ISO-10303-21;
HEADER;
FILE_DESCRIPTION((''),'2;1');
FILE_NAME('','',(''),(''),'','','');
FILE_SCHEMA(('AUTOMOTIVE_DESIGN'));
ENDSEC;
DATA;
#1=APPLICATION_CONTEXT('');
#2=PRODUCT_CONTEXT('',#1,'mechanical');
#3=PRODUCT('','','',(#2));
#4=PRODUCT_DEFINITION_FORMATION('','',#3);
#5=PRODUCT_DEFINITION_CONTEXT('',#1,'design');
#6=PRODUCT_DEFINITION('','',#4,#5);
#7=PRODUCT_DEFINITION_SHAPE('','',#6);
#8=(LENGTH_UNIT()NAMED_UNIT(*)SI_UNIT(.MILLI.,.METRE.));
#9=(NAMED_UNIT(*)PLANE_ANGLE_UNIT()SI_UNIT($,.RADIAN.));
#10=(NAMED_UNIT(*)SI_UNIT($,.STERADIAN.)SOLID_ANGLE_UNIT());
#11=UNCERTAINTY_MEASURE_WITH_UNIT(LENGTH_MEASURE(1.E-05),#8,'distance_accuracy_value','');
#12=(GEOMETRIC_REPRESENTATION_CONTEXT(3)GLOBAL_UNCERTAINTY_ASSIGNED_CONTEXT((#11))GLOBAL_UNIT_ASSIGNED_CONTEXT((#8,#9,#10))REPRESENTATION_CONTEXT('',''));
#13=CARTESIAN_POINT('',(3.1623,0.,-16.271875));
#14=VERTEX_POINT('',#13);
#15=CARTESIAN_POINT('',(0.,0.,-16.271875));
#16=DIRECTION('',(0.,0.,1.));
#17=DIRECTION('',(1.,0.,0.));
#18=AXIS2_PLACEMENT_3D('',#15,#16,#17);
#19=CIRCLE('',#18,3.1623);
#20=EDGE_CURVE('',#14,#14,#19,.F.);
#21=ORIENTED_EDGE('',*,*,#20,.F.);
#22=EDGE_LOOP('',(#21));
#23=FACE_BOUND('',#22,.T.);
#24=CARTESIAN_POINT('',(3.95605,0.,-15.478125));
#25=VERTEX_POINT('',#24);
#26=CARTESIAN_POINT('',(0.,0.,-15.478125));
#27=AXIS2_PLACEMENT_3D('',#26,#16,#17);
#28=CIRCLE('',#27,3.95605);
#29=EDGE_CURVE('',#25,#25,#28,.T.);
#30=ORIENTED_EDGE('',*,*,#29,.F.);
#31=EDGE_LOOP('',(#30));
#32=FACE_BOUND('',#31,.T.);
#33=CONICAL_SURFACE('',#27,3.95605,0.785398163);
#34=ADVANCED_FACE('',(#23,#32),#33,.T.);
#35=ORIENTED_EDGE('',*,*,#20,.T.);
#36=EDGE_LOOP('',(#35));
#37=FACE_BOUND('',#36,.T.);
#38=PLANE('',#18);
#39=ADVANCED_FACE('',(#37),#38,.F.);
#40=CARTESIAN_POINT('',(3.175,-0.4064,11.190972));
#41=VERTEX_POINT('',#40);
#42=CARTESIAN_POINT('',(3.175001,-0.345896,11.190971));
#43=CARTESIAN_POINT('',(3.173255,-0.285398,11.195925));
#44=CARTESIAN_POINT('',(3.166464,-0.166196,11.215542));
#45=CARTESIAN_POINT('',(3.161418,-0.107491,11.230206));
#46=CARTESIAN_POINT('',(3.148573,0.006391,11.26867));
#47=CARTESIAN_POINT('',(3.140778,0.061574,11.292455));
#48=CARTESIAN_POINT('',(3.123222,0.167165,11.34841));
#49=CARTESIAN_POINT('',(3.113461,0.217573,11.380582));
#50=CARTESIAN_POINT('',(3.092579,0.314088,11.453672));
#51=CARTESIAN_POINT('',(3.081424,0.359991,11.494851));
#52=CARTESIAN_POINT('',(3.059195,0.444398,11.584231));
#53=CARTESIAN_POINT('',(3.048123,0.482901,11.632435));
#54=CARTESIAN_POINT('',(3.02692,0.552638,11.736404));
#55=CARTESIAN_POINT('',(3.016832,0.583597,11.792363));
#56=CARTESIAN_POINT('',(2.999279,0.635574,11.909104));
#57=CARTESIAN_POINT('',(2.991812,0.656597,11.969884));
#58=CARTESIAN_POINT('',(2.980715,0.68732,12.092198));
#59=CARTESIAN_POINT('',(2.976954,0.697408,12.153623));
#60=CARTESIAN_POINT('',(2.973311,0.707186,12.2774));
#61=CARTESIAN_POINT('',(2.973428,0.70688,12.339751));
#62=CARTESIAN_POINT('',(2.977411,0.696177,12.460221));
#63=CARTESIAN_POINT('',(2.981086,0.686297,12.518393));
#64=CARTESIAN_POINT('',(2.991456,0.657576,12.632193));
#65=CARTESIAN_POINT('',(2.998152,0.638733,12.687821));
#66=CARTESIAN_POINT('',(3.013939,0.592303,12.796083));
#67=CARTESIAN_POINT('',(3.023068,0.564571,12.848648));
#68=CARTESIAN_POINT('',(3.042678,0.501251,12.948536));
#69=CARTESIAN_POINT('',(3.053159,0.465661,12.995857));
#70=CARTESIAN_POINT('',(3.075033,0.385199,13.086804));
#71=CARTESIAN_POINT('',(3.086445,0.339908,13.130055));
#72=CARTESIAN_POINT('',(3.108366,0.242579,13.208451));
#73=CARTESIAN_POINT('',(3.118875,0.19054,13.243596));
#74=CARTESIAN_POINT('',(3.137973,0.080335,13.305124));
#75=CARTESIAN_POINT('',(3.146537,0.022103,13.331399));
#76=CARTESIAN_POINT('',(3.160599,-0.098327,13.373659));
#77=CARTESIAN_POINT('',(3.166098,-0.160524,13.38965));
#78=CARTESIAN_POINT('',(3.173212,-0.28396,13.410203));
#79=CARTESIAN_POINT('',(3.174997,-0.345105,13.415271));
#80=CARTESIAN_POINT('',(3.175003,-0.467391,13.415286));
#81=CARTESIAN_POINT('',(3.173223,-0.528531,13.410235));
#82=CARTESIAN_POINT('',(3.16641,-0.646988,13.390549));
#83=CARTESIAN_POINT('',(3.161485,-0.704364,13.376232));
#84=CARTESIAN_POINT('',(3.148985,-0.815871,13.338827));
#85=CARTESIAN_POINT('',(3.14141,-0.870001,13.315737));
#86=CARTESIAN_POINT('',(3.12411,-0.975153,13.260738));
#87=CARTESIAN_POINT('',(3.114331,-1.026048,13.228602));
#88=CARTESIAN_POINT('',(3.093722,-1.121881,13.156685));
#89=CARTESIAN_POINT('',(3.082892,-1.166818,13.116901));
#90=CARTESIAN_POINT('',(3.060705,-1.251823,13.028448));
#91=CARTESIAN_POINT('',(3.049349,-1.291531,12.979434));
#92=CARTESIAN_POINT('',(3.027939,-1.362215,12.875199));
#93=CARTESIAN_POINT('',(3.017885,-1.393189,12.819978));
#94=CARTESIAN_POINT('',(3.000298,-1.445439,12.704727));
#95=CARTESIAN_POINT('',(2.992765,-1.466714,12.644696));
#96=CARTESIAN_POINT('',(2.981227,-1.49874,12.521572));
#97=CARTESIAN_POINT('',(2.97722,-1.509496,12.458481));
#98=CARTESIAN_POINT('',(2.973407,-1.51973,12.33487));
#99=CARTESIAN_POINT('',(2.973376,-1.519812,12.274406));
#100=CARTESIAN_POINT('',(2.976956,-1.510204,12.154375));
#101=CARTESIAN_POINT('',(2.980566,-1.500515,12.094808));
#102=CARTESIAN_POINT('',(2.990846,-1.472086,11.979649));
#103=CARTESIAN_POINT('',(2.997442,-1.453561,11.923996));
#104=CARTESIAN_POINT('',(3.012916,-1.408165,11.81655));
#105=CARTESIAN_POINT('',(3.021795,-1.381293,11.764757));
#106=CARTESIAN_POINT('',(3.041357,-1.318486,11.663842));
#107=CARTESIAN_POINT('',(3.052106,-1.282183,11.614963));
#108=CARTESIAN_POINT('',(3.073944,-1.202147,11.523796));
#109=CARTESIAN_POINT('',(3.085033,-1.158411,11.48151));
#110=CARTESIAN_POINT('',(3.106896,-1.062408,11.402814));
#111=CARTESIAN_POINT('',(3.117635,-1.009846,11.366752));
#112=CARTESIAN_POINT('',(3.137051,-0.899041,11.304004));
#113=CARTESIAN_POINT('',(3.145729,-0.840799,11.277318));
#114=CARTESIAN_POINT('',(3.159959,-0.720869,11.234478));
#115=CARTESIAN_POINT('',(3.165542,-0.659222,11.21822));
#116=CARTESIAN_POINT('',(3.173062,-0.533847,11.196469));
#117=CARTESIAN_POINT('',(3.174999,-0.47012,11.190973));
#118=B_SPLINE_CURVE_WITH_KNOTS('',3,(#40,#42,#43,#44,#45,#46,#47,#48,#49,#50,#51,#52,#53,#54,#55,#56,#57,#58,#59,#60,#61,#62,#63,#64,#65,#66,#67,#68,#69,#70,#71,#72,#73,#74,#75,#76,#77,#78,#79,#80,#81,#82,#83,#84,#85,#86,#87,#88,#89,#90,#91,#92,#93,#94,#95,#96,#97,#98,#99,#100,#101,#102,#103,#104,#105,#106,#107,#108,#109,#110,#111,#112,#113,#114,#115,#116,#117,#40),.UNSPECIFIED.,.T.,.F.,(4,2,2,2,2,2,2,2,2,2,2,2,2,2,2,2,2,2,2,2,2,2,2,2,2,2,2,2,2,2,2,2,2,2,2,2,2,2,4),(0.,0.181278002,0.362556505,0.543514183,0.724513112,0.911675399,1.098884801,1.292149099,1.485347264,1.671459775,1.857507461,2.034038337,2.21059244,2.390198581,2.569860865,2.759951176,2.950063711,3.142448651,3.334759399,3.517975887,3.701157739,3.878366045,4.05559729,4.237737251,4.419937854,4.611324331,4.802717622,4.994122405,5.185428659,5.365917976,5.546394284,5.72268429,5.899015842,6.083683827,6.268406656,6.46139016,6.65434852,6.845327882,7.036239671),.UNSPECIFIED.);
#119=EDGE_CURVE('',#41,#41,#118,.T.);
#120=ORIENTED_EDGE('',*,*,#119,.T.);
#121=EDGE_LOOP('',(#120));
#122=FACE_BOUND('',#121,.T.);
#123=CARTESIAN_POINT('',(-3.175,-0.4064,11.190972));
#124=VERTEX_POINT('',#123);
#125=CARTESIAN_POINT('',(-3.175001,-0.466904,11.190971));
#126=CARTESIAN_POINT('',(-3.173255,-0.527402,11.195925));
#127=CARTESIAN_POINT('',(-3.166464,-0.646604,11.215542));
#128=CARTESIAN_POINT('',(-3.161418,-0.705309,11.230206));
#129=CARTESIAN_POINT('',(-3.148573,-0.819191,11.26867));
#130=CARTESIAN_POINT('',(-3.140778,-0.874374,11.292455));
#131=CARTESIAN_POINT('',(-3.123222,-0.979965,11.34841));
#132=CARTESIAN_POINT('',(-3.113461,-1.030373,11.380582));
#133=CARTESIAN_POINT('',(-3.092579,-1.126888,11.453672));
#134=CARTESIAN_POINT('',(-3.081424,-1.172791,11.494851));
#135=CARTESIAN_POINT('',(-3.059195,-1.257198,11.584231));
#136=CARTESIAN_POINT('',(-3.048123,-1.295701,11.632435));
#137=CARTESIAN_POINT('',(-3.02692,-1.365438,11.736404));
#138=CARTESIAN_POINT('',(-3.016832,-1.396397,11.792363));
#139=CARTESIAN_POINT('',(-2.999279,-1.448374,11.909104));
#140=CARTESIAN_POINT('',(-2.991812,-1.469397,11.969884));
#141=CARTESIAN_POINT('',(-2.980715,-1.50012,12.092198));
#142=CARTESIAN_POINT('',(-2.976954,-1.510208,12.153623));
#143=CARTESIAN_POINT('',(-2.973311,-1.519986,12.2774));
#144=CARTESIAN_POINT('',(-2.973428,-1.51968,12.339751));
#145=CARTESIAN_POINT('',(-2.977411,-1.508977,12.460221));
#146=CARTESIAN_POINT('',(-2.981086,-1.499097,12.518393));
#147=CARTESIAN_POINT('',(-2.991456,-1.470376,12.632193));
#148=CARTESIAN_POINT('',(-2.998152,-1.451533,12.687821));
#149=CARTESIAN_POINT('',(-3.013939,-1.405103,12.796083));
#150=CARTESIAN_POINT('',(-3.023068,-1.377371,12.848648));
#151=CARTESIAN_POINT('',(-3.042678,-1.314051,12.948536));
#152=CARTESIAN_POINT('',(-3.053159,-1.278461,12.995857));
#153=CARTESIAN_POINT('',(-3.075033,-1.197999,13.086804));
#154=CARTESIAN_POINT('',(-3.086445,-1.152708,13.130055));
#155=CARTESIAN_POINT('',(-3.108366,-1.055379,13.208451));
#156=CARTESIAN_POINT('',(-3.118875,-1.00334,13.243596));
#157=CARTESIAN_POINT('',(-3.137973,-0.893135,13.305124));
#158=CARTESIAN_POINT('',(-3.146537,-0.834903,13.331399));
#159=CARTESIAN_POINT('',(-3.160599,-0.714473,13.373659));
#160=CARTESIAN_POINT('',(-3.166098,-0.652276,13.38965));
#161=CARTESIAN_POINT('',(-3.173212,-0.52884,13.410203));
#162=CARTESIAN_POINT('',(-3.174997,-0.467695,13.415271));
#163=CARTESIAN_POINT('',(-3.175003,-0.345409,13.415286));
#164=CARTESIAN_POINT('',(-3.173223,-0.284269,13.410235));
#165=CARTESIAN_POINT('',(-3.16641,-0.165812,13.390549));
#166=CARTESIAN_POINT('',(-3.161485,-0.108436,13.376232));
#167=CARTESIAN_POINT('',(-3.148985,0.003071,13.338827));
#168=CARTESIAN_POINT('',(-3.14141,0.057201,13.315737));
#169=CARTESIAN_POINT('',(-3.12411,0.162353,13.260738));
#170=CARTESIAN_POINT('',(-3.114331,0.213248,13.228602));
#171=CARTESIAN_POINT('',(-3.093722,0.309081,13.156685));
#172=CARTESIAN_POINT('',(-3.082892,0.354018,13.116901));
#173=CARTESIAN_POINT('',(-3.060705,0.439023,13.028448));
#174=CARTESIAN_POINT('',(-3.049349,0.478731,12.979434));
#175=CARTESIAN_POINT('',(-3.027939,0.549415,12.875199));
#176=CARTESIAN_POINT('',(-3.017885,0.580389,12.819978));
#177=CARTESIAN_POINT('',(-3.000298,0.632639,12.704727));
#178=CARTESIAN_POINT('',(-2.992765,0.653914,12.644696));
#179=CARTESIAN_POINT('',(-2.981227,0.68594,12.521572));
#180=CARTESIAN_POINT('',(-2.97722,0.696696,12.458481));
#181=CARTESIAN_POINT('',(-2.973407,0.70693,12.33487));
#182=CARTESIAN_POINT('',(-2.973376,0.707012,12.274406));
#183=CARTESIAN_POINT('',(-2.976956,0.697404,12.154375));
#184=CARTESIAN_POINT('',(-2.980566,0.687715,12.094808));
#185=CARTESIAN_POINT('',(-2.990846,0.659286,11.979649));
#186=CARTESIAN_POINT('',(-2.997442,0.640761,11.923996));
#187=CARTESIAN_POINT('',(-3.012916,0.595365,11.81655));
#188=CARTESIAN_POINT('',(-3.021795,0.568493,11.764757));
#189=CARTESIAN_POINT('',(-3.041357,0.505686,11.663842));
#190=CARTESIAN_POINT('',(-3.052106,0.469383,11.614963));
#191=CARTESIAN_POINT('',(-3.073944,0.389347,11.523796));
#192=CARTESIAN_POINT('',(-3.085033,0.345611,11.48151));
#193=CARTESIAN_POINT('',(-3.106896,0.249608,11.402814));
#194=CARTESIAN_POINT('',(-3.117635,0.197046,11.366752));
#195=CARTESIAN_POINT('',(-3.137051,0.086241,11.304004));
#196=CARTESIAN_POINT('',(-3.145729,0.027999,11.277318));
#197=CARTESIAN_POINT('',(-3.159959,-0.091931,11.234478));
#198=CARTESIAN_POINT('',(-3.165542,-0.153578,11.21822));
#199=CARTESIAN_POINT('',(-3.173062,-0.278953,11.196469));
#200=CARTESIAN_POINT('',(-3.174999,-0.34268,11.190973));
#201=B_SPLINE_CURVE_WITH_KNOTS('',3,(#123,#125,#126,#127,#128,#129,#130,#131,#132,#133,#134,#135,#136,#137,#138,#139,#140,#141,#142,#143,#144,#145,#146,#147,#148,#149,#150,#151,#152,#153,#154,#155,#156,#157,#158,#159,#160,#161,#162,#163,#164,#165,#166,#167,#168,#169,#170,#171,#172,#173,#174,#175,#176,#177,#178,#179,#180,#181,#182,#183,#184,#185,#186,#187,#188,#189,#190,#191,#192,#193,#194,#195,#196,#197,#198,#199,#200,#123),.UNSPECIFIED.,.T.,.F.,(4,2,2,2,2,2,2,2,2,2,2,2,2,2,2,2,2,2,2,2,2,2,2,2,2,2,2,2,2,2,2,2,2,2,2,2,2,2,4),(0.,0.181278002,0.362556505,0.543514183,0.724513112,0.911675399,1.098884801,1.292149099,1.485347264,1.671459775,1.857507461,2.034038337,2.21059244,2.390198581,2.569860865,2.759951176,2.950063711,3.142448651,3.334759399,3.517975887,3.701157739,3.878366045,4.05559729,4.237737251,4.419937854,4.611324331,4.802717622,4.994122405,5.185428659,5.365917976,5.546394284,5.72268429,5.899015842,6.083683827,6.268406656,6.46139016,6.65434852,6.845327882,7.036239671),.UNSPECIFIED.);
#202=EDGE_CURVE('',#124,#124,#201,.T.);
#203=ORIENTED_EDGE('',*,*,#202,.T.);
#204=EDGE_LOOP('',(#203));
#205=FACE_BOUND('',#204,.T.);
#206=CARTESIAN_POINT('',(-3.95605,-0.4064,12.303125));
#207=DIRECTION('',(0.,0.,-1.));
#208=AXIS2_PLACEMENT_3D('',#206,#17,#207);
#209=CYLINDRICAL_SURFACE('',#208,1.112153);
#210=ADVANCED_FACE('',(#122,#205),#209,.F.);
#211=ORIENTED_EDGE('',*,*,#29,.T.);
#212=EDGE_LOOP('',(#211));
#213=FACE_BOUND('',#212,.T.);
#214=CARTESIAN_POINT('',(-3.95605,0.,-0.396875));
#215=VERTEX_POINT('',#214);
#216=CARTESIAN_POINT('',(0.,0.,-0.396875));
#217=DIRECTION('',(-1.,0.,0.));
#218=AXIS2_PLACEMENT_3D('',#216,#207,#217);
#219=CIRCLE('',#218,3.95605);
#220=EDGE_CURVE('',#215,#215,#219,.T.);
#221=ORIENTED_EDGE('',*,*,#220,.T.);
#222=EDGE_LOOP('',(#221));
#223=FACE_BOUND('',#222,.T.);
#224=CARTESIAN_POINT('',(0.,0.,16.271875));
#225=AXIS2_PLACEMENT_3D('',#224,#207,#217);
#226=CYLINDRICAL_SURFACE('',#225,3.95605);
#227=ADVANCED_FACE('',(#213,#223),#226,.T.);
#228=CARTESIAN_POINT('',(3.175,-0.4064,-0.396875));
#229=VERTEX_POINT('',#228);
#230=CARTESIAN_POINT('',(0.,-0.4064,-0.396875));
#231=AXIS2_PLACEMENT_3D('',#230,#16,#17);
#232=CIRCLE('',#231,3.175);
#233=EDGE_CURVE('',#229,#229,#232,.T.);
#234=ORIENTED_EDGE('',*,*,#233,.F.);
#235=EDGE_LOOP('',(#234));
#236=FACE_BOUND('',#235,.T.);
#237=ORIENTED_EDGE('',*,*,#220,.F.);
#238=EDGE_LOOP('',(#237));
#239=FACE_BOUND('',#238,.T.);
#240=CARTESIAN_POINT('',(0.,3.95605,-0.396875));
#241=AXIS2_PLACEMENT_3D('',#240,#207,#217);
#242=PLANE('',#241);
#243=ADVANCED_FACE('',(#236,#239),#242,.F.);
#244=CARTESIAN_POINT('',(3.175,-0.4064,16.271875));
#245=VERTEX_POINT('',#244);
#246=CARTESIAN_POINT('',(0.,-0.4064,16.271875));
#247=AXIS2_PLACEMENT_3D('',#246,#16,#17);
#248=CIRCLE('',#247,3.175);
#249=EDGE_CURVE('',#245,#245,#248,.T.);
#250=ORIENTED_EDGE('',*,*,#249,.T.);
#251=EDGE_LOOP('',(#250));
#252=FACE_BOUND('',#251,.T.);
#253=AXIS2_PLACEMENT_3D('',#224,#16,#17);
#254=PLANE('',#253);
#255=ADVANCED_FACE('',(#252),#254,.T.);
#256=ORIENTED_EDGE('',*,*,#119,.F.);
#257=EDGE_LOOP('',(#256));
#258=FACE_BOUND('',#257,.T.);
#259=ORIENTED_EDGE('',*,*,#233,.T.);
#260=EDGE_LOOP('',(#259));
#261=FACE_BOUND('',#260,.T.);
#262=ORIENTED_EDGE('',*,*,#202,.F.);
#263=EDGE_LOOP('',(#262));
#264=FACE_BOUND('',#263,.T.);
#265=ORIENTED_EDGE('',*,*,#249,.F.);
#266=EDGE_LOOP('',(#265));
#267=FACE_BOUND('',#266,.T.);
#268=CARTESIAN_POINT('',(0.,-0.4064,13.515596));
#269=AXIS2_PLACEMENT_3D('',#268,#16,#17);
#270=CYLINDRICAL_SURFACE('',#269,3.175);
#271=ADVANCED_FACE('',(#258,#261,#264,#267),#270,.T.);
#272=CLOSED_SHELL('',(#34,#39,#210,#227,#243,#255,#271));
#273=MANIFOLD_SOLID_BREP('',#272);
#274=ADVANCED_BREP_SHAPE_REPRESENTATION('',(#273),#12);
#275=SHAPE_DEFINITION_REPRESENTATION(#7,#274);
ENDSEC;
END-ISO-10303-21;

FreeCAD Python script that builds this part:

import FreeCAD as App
import Part
import Sketcher
from FreeCAD import Vector
Q = App.Units.Quantity


def edges_at(feature, points):
    """Names of the edges that pass closest to the given points."""
    edges = feature.Shape.Edges
    near = lambda p: min(range(len(edges)), key=lambda i: edges[i].distToShape(Part.Vertex(*p))[0])
    return sorted({f"Edge{near(p) + 1}" for p in points})

doc = App.newDocument("Part")
body = doc.addObject("PartDesign::Body", "Body")

# Sketch on XY plane
sketch1 = body.newObject("Sketcher::SketchObject", "Sketch")
sketch1.AttachmentSupport = (doc.getObject("XY_Plane"), [""])
sketch1.MapMode = "FlatFace"
sketch1.addGeometry(Part.Circle(Vector(0, 0, 0), Vector(0, 0, 1), 4), False)
sketch1.addConstraint([
    Sketcher.Constraint("Coincident", 0, 3, -1, 1),
    Sketcher.Constraint("Diameter", 0, Q("0.3115 in")),
])
pad1 = body.newObject("PartDesign::Pad", "Pad")
pad1.Profile = sketch1
pad1.Length = Q("1.28125 in")
pad1.Midplane = True
doc.recompute()

chamfer = body.newObject("PartDesign::Chamfer", "Chamfer")
chamfer.Base = (pad1, edges_at(pad1, [(-3.956, 0, -16.272)]))
chamfer.Size = Q("0.03125 in")

# Sketch on YZ plane
sketch2 = body.newObject("Sketcher::SketchObject", "Sketch001")
sketch2.AttachmentSupport = (doc.getObject("YZ_Plane"), [""])
sketch2.MapMode = "FlatFace"
sketch2.addGeometry([
    Part.LineSegment(Vector(4, 16.3, 0), Vector(2.8, 16.3, 0)),
    Part.LineSegment(Vector(2.8, 16.3, 0), Vector(2.8, -0.4, 0)),
    Part.LineSegment(Vector(2.8, -0.4, 0), Vector(4, -0.4, 0)),
    Part.LineSegment(Vector(4, -0.4, 0), Vector(4, 16.3, 0)),
], False)
sketch2.addGeometry(Part.LineSegment(Vector(-0.4, 16.3, 0), Vector(-0.4, -0.4, 0)), True)  # axis
sketch2.addConstraint([
    Sketcher.Constraint("Coincident", 0, 2, 1, 1),
    Sketcher.Constraint("Coincident", 1, 2, 2, 1),
    Sketcher.Constraint("Coincident", 2, 2, 3, 1),
    Sketcher.Constraint("Coincident", 3, 2, 0, 1),
    Sketcher.Constraint("Horizontal", 0),
    Sketcher.Constraint("Vertical", 1),
    Sketcher.Constraint("Horizontal", 2),
    Sketcher.Constraint("Vertical", 3),
    Sketcher.Constraint("Vertical", 4),
    Sketcher.Constraint("Horizontal", 3, 2, 4, 1),
    Sketcher.Constraint("Horizontal", 2, 2, 4, 2),
    Sketcher.Constraint("DistanceY", 1, 2, 1, 1, Q("0.65625 in")),
    Sketcher.Constraint("DistanceX", -1, 1, 0, 2, Q("0.109 in")),
    Sketcher.Constraint("DistanceY", -1, 1, 0, 2, Q("0.640625 in")),
    Sketcher.Constraint("DistanceX", 4, 1, -1, 1, Q("0.016 in")),
    Sketcher.Constraint("DistanceX", 0, 2, 0, 1, Q("1.18745 mm")),
])
groove = body.newObject("PartDesign::Groove", "Groove")
groove.Profile = sketch2
groove.ReferenceAxis = (sketch2, ["Axis0"])
groove.Angle = 360

# Sketch on YZ plane
sketch3 = body.newObject("Sketcher::SketchObject", "Sketch002")
sketch3.AttachmentSupport = (doc.getObject("YZ_Plane"), [""])
sketch3.MapMode = "FlatFace"
sketch3.addGeometry(Part.Circle(Vector(-0.4, 12.3, 0), Vector(0, 0, 1), 1.1), False)
sketch3.addConstraint([
    Sketcher.Constraint("DistanceX", 0, 3, -1, 1, Q("0.016 in")),
    Sketcher.Constraint("DistanceY", -1, 1, 0, 3, Q("0.484375 in")),
    Sketcher.Constraint("Diameter", 0, Q("2.224307 mm")),
])
pocket1 = body.newObject("PartDesign::Pocket", "Pocket")
pocket1.Profile = sketch3
pocket1.Type = "ThroughAll"
pocket1.Midplane = True

doc.recompute()
